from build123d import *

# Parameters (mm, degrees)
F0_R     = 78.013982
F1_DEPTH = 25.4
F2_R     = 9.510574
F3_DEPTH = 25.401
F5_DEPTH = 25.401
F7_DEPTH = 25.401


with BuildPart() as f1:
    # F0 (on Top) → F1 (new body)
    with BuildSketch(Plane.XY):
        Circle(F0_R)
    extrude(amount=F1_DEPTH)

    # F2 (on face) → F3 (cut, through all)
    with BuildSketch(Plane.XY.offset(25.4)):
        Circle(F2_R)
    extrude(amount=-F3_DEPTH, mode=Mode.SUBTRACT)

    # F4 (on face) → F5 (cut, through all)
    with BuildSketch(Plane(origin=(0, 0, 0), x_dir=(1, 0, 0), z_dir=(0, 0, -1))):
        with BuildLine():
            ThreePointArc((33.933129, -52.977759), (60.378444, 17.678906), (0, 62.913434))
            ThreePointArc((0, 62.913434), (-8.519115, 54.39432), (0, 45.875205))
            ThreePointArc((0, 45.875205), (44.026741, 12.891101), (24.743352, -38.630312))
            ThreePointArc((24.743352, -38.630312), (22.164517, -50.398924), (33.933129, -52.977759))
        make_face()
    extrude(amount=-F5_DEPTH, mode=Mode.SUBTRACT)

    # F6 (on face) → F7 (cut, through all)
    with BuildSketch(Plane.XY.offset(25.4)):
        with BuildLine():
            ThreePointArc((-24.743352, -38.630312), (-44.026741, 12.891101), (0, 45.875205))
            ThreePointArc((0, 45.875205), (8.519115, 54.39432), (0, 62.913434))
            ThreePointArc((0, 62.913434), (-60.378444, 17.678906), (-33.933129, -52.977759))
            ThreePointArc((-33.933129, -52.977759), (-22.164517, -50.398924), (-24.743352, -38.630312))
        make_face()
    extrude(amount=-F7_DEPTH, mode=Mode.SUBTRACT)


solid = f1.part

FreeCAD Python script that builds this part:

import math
import FreeCAD as App
import Part
import Sketcher
Q = App.Units.Quantity

doc = App.newDocument("Part")
body = doc.addObject("PartDesign::Body", "Body")

sketch1 = doc.addObject("Sketcher::SketchObject", "Sketch")
body.addObject(sketch1)
sketch1.AttachmentSupport = (doc.XY_Plane, [""])
sketch1.MapMode = "FlatFace"
sketch1.addGeometry(Part.Circle(App.Vector(0, 0, 0), App.Vector(0, 0, 1), 78.013982), False)
sketch1.addConstraint([
    Sketcher.Constraint("Coincident", 0, 3, -1, 1),
    Sketcher.Constraint("Diameter", 0, Q("156.027964 mm")),
])
pad1 = doc.addObject("PartDesign::Pad", "Pad")
body.addObject(pad1)
pad1.Profile = sketch1
pad1.Length = Q("1 in")

sketch2 = doc.addObject("Sketcher::SketchObject", "Sketch001")
body.addObject(sketch2)
sketch2.AttachmentSupport = (doc.XY_Plane, [""])
sketch2.MapMode = "FlatFace"
sketch2.AttachmentOffset = App.Placement(App.Vector(0, 0, 1 * 25.4), App.Rotation())
sketch2.addGeometry(Part.Circle(App.Vector(0, 0, 0), App.Vector(0, 0, 1), 9.510574), False)
sketch2.addConstraint([
    Sketcher.Constraint("Coincident", 0, 3, -1, 1),
    Sketcher.Constraint("Diameter", 0, Q("19.021148 mm")),
])
pocket1 = doc.addObject("PartDesign::Pocket", "Pocket")
body.addObject(pocket1)
pocket1.Profile = sketch2
pocket1.Type = "ThroughAll"

sketch3 = doc.addObject("Sketcher::SketchObject", "Sketch002")
body.addObject(sketch3)
sketch3.AttachmentSupport = (doc.XY_Plane, [""])
sketch3.MapMode = "FlatFace"
sketch3.addGeometry([
    Part.ArcOfCircle(Part.Circle(App.Vector(0, 0, 0), App.Vector(0, 0, 1), 62.913434), math.radians(-90), math.radians(57.359768)),
    Part.ArcOfCircle(Part.Circle(App.Vector(0, -54.39432, 0), App.Vector(0, 0, 1), 8.519115), math.radians(89.999997), math.radians(270.000003)),
    Part.ArcOfCircle(Part.Circle(App.Vector(-0.000001, 0, 0), App.Vector(0, 0, 1), 45.875205), math.radians(-89.999999), math.radians(57.359767)),
    Part.ArcOfCircle(Part.Circle(App.Vector(29.338241, 45.804035, 0), App.Vector(0, 0, 1), 8.519114), math.radians(57.359766), math.radians(237.359766)),
], False)
sketch3.addConstraint([
    Sketcher.Constraint("Tangent", 0, 1, 1, 2),
    Sketcher.Constraint("Tangent", 1, 1, 2, 1),
    Sketcher.Constraint("Tangent", 2, 2, 3, 2),
    Sketcher.Constraint("Tangent", 3, 1, 0, 2),
    Sketcher.Constraint("Coincident", 0, 3, -1, 1),
    Sketcher.Constraint("Coincident", 2, 3, -1, 1),
    Sketcher.Constraint("PointOnObject", 1, 3, -2),
    Sketcher.Constraint("Radius", 0, Q("62.913434 mm")),
    Sketcher.Constraint("Radius", 1, Q("8.519115 mm")),
    Sketcher.Constraint("DistanceX", -1, 1, 3, 3, Q("29.338241 mm")),
])
pocket2 = doc.addObject("PartDesign::Pocket", "Pocket001")
body.addObject(pocket2)
pocket2.Profile = sketch3
pocket2.Type = "ThroughAll"
pocket2.Reversed = True

sketch4 = doc.addObject("Sketcher::SketchObject", "Sketch003")
body.addObject(sketch4)
sketch4.AttachmentSupport = (doc.XY_Plane, [""])
sketch4.MapMode = "FlatFace"
sketch4.AttachmentOffset = App.Placement(App.Vector(0, 0, 1 * 25.4), App.Rotation())
sketch4.addGeometry([
    Part.ArcOfCircle(Part.Circle(App.Vector(0.000001, 0, 0), App.Vector(0, 0, 1), 45.875205), math.radians(90.000001), math.radians(237.359767)),
    Part.ArcOfCircle(Part.Circle(App.Vector(0, 54.39432, 0), App.Vector(0, 0, 1), 8.519115), math.radians(-90.000003), math.radians(90.000003)),
    Part.ArcOfCircle(Part.Circle(App.Vector(0, 0, 0), App.Vector(0, 0, 1), 62.913434), math.radians(90), math.radians(237.359768)),
    Part.ArcOfCircle(Part.Circle(App.Vector(-29.338241, -45.804035, 0), App.Vector(0, 0, 1), 8.519114), math.radians(-122.640234), math.radians(57.359766)),
], False)
sketch4.addConstraint([
    Sketcher.Constraint("Tangent", 0, 1, 1, 1),
    Sketcher.Constraint("Tangent", 1, 2, 2, 1),
    Sketcher.Constraint("Tangent", 2, 2, 3, 1),
    Sketcher.Constraint("Tangent", 3, 2, 0, 2),
    Sketcher.Constraint("Coincident", 0, 3, -1, 1),
    Sketcher.Constraint("Coincident", 2, 3, -1, 1),
    Sketcher.Constraint("PointOnObject", 1, 3, -2),
    Sketcher.Constraint("Radius", 0, Q("45.875205 mm")),
    Sketcher.Constraint("Radius", 1, Q("8.519115 mm")),
    Sketcher.Constraint("DistanceX", 3, 3, -1, 1, Q("29.338241 mm")),
])
pocket3 = doc.addObject("PartDesign::Pocket", "Pocket002")
body.addObject(pocket3)
pocket3.Profile = sketch4
pocket3.Type = "ThroughAll"

doc.recompute()
